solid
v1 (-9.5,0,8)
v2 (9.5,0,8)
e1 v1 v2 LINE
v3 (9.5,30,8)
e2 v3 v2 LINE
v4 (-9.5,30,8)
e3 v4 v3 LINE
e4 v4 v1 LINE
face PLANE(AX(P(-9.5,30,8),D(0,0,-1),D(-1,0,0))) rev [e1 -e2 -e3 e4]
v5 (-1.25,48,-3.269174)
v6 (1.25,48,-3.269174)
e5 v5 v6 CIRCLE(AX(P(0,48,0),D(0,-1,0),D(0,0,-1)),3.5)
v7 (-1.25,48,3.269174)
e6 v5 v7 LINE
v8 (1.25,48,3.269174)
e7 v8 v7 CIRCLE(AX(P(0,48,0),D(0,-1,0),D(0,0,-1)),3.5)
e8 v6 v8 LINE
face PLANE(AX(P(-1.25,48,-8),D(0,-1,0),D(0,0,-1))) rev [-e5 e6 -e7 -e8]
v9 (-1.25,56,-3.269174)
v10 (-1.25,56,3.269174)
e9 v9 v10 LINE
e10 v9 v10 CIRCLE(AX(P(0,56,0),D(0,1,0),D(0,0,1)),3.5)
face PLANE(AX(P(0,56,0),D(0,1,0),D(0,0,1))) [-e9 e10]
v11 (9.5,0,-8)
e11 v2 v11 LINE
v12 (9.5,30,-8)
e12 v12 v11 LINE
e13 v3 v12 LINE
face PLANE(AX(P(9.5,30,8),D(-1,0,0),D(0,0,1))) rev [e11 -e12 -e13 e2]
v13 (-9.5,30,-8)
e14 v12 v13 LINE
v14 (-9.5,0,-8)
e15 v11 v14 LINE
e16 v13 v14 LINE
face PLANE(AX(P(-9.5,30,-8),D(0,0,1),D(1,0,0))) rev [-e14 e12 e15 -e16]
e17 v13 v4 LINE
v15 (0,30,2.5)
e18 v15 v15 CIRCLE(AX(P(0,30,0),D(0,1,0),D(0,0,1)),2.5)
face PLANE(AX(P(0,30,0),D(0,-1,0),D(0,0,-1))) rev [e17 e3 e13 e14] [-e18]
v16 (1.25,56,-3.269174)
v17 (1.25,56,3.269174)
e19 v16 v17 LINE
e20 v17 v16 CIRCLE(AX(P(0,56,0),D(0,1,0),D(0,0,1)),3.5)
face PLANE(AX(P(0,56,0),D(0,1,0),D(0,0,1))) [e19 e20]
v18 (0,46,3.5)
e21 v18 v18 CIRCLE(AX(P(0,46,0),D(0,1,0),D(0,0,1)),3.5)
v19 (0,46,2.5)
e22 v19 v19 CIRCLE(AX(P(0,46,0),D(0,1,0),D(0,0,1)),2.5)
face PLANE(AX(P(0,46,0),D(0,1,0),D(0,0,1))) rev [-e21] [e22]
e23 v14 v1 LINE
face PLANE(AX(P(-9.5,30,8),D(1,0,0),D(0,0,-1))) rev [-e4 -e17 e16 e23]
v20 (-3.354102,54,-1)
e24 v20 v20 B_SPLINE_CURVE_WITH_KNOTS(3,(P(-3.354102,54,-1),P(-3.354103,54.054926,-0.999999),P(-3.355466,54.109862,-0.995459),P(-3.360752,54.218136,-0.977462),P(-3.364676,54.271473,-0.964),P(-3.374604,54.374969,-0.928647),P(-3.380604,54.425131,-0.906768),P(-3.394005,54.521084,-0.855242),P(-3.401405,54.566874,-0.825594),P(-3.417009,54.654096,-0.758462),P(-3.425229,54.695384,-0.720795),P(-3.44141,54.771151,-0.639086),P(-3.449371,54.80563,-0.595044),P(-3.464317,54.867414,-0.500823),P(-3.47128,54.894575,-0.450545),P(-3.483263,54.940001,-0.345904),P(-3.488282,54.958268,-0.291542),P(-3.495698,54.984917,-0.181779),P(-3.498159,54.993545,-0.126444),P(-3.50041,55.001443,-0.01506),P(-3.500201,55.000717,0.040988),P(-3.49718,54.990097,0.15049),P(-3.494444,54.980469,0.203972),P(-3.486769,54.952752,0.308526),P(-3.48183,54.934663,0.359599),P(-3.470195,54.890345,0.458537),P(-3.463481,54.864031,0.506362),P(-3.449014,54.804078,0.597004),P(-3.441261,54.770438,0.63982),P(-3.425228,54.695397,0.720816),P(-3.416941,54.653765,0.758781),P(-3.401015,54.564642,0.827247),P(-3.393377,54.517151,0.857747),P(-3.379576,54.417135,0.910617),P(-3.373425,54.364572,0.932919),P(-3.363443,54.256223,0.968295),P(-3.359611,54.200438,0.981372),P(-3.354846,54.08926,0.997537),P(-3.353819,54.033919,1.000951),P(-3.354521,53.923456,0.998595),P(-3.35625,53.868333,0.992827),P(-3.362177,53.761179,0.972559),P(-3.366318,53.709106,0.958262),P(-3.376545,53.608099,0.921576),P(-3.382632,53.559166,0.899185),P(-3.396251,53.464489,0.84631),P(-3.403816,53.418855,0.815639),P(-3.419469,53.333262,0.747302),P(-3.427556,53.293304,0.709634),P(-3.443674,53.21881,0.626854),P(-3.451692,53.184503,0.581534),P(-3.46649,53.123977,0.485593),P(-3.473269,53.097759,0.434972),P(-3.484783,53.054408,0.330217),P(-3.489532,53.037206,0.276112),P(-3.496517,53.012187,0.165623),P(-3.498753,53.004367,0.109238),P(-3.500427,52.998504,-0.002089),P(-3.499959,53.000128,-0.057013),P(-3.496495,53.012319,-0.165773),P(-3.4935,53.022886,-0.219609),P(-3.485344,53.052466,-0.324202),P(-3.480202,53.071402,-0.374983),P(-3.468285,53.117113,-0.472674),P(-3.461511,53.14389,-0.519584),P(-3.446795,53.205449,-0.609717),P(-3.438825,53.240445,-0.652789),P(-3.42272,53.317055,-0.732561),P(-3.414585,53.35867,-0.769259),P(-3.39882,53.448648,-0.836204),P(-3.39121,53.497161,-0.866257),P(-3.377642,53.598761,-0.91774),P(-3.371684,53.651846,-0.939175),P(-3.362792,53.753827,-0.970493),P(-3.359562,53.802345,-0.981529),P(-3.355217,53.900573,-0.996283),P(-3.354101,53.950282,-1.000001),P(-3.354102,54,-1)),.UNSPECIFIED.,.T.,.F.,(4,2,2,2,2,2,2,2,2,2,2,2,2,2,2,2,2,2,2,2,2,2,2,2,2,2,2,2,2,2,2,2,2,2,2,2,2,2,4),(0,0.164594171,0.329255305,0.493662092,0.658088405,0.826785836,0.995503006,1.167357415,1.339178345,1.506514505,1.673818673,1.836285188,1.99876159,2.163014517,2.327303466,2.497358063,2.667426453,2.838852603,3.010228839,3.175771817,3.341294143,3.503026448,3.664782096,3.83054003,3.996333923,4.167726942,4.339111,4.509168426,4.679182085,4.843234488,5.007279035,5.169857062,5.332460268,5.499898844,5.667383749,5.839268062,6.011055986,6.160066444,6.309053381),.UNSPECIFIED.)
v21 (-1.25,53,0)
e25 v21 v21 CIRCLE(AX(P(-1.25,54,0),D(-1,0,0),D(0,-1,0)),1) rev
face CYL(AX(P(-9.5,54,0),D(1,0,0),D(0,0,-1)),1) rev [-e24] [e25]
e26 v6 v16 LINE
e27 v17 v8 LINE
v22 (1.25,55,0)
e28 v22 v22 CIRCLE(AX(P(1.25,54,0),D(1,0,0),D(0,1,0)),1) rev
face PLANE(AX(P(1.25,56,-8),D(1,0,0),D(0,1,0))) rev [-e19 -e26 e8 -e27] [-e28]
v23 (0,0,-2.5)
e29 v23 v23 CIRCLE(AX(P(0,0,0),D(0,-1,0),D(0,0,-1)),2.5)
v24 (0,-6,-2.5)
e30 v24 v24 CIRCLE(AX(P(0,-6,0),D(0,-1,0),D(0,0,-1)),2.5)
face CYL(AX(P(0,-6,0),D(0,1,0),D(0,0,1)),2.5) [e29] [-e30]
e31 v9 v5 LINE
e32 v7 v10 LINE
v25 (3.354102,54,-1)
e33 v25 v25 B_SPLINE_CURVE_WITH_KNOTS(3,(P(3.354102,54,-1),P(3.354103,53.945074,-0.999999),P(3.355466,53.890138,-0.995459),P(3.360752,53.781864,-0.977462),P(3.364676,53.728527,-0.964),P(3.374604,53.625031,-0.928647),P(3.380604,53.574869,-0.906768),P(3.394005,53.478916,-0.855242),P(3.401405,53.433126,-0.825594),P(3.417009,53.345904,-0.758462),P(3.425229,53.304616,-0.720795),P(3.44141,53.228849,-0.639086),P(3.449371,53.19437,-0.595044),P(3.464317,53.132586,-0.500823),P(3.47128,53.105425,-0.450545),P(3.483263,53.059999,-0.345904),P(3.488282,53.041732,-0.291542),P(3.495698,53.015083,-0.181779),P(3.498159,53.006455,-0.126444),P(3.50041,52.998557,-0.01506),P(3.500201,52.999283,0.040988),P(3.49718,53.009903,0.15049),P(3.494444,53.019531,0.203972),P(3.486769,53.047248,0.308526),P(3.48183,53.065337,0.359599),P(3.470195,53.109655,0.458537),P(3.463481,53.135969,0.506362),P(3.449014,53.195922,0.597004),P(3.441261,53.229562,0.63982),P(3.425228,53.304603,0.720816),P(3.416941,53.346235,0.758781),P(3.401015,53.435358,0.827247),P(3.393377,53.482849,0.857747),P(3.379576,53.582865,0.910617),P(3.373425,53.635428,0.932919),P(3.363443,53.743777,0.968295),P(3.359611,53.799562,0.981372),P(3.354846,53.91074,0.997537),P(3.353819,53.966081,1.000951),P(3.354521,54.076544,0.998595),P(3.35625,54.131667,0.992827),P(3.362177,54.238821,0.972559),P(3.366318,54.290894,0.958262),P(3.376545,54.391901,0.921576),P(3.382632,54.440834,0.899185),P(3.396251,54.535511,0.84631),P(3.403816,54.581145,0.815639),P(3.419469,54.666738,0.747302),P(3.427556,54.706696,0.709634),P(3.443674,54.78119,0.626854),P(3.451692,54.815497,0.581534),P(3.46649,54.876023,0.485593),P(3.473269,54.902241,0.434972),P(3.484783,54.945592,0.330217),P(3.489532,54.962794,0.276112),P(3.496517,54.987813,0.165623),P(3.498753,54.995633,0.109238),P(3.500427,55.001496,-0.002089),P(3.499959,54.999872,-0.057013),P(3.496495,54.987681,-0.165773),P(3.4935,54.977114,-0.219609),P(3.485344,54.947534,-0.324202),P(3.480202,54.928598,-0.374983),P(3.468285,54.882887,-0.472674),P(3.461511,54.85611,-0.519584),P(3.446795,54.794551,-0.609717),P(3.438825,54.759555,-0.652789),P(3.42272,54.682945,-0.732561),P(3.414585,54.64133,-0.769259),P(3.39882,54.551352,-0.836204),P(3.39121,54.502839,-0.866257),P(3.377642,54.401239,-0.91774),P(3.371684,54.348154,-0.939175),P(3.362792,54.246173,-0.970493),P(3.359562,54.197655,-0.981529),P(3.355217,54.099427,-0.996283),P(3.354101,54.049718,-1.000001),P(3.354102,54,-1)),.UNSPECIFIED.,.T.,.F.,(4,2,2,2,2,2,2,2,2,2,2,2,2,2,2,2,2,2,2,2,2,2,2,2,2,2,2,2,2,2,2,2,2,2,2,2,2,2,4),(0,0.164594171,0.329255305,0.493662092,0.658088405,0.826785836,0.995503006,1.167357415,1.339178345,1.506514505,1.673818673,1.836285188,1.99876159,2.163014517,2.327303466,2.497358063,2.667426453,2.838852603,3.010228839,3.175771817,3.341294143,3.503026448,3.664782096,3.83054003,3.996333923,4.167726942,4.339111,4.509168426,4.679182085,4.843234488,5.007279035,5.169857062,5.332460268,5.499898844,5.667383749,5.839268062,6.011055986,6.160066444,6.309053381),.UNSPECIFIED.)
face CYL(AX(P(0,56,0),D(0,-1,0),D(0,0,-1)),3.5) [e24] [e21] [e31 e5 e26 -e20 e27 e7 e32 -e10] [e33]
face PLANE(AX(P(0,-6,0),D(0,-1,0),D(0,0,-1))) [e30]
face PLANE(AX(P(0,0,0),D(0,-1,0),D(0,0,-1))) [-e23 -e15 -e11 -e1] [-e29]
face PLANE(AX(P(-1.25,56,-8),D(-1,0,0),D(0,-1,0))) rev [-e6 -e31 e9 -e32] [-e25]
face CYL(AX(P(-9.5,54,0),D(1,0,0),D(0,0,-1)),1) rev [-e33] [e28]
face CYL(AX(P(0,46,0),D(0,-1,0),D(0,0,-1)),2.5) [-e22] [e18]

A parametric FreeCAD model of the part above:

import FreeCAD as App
import Part
import Sketcher

doc = App.newDocument("Part")
params = doc.addObject("Spreadsheet::Sheet", "Params")
for row, (alias, value) in enumerate([
    ("sketch1_width", "19 mm"),
    ("sketch1_height", "16 mm"),
    ("pad1_length", "30 mm"),
    ("sketch2_diameter", "7 mm"),
    ("pad2_length", "26 mm"),
    ("sketch3_diameter", "5 mm"),
    ("pad3_length", "6 mm"),
    ("sketch4_diameter", "2 mm"),
    ("sketch5_diameter", "7 mm"),
    ("sketch5_diameter2", "5 mm"),
    ("pocket2_length", "16 mm"),
    ("sketch6_height", "8 mm"),
    ("sketch6_width", "2.5 mm"),
], start=1):
    params.set(f"A{row}", alias)
    params.set(f"B{row}", "=" + value)
    params.setAlias(f"B{row}", alias)

body = doc.addObject("PartDesign::Body", "Body")

# Sketch on XZ plane
sketch1 = body.newObject("Sketcher::SketchObject", "Sketch")
sketch1.AttachmentSupport = (doc.getObject("XZ_Plane"), [""])
sketch1.MapMode = "FlatFace"
sketch1.addGeometry(Part.LineSegment(App.Vector(-10, -8, 0), App.Vector(-10, 8, 0)), False)
sketch1.addGeometry(Part.LineSegment(App.Vector(-10, 8, 0), App.Vector(10, 8, 0)), False)
sketch1.addGeometry(Part.LineSegment(App.Vector(10, 8, 0), App.Vector(10, -8, 0)), False)
sketch1.addGeometry(Part.LineSegment(App.Vector(10, -8, 0), App.Vector(-10, -8, 0)), False)
sketch1.addConstraint(Sketcher.Constraint("Coincident", 0, 2, 1, 1))
sketch1.addConstraint(Sketcher.Constraint("Coincident", 1, 2, 2, 1))
sketch1.addConstraint(Sketcher.Constraint("Coincident", 2, 2, 3, 1))
sketch1.addConstraint(Sketcher.Constraint("Coincident", 3, 2, 0, 1))
sketch1.addConstraint(Sketcher.Constraint("Vertical", 0))
sketch1.addConstraint(Sketcher.Constraint("Horizontal", 1))
sketch1.addConstraint(Sketcher.Constraint("Vertical", 2))
sketch1.addConstraint(Sketcher.Constraint("Horizontal", 3))
sketch1.addConstraint(Sketcher.Constraint("Symmetric", 0, 2, 2, 2, -1, 1))
sketch1.addConstraint(Sketcher.Constraint("DistanceX", 1, 1, 1, 2, 19.0))
sketch1.addConstraint(Sketcher.Constraint("DistanceY", 0, 1, 0, 2, 16.0))
sketch1.setExpression("Constraints[9]", "Params.sketch1_width")
sketch1.setExpression("Constraints[10]", "Params.sketch1_height")
pad1 = body.newObject("PartDesign::Pad", "Pad")
pad1.Profile = sketch1
pad1.setExpression("Length", "Params.pad1_length")
pad1.Reversed = True

# Sketch on XZ plane
sketch2 = body.newObject("Sketcher::SketchObject", "Sketch001")
sketch2.AttachmentSupport = (doc.getObject("XZ_Plane"), [""])
sketch2.MapMode = "FlatFace"
sketch2.AttachmentOffset = App.Placement(App.Vector(0, 0, -30), App.Rotation())
sketch2.addGeometry(Part.Circle(App.Vector(0, 0, 0), App.Vector(0, 0, 1), 3.5), False)
sketch2.addConstraint(Sketcher.Constraint("Coincident", 0, 3, -1, 1))
sketch2.addConstraint(Sketcher.Constraint("Diameter", 0, 7.0))
sketch2.setExpression("Constraints[1]", "Params.sketch2_diameter")
pad2 = body.newObject("PartDesign::Pad", "Pad001")
pad2.Profile = sketch2
pad2.setExpression("Length", "Params.pad2_length")
pad2.Reversed = True

# Sketch on XZ plane
sketch3 = body.newObject("Sketcher::SketchObject", "Sketch002")
sketch3.AttachmentSupport = (doc.getObject("XZ_Plane"), [""])
sketch3.MapMode = "FlatFace"
sketch3.addGeometry(Part.Circle(App.Vector(0, 0, 0), App.Vector(0, 0, 1), 2.5), False)
sketch3.addConstraint(Sketcher.Constraint("Coincident", 0, 3, -1, 1))
sketch3.addConstraint(Sketcher.Constraint("Diameter", 0, 5.0))
sketch3.setExpression("Constraints[1]", "Params.sketch3_diameter")
pad3 = body.newObject("PartDesign::Pad", "Pad002")
pad3.Profile = sketch3
pad3.setExpression("Length", "Params.pad3_length")

# Sketch on YZ plane
sketch4 = body.newObject("Sketcher::SketchObject", "Sketch003")
sketch4.AttachmentSupport = (doc.getObject("YZ_Plane"), [""])
sketch4.MapMode = "FlatFace"
sketch4.AttachmentOffset = App.Placement(App.Vector(0, 0, 9.5), App.Rotation())
sketch4.addGeometry(Part.Circle(App.Vector(54, 0, 0), App.Vector(0, 0, 1), 1), False)
sketch4.addConstraint(Sketcher.Constraint("PointOnObject", 0, 3, -1))
sketch4.addConstraint(Sketcher.Constraint("Diameter", 0, 2.0))
sketch4.addConstraint(Sketcher.Constraint("DistanceX", -1, 1, 0, 3, 54.0))
sketch4.setExpression("Constraints[1]", "Params.sketch4_diameter")
pocket1 = body.newObject("PartDesign::Pocket", "Pocket")
pocket1.Profile = sketch4
pocket1.Type = "ThroughAll"

# Sketch on XZ plane
sketch5 = body.newObject("Sketcher::SketchObject", "Sketch004")
sketch5.AttachmentSupport = (doc.getObject("XZ_Plane"), [""])
sketch5.MapMode = "FlatFace"
sketch5.AttachmentOffset = App.Placement(App.Vector(0, 0, -30), App.Rotation())
sketch5.addGeometry(Part.Circle(App.Vector(0, 0, 0), App.Vector(0, 0, 1), 3.5), False)
sketch5.addGeometry(Part.Circle(App.Vector(0, 0, 0), App.Vector(0, 0, 1), 2.5), False)
sketch5.addConstraint(Sketcher.Constraint("Coincident", 0, 3, -1, 1))
sketch5.addConstraint(Sketcher.Constraint("Coincident", 1, 3, -1, 1))
sketch5.addConstraint(Sketcher.Constraint("Diameter", 0, 7.0))
sketch5.addConstraint(Sketcher.Constraint("Diameter", 1, 5.0))
sketch5.setExpression("Constraints[2]", "Params.sketch5_diameter")
sketch5.setExpression("Constraints[3]", "Params.sketch5_diameter2")
pocket2 = body.newObject("PartDesign::Pocket", "Pocket001")
pocket2.Profile = sketch5
pocket2.setExpression("Length", "Params.pocket2_length")

# Sketch on XY plane
sketch6 = body.newObject("Sketcher::SketchObject", "Sketch005")
sketch6.AttachmentSupport = (doc.getObject("XY_Plane"), [""])
sketch6.MapMode = "FlatFace"
sketch6.addGeometry(Part.LineSegment(App.Vector(-1.2, 56, 0), App.Vector(-1.2, 48, 0)), False)
sketch6.addGeometry(Part.LineSegment(App.Vector(-1.2, 48, 0), App.Vector(1.2, 48, 0)), False)
sketch6.addGeometry(Part.LineSegment(App.Vector(1.2, 48, 0), App.Vector(1.2, 56, 0)), False)
sketch6.addGeometry(Part.LineSegment(App.Vector(1.2, 56, 0), App.Vector(-1.2, 56, 0)), False)
sketch6.addConstraint(Sketcher.Constraint("Coincident", 0, 2, 1, 1))
sketch6.addConstraint(Sketcher.Constraint("Coincident", 1, 2, 2, 1))
sketch6.addConstraint(Sketcher.Constraint("Coincident", 2, 2, 3, 1))
sketch6.addConstraint(Sketcher.Constraint("Coincident", 3, 2, 0, 1))
sketch6.addConstraint(Sketcher.Constraint("Vertical", 0))
sketch6.addConstraint(Sketcher.Constraint("Horizontal", 1))
sketch6.addConstraint(Sketcher.Constraint("Vertical", 2))
sketch6.addConstraint(Sketcher.Constraint("Horizontal", 3))
sketch6.addConstraint(Sketcher.Constraint("DistanceY", 0, 2, 0, 1, 8.0))
sketch6.addConstraint(Sketcher.Constraint("DistanceX", 1, 1, 1, 2, 2.5))
sketch6.addConstraint(Sketcher.Constraint("DistanceY", -1, 1, 0, 2, 48.0))
sketch6.addConstraint(Sketcher.Constraint("DistanceX", 0, 2, -1, 1, 1.25))
sketch6.setExpression("Constraints[8]", "Params.sketch6_height")
sketch6.setExpression("Constraints[9]", "Params.sketch6_width")
pocket3 = body.newObject("PartDesign::Pocket", "Pocket002")
pocket3.Profile = sketch6
pocket3.Type = "ThroughAll"
pocket3.Midplane = True

doc.recompute()
